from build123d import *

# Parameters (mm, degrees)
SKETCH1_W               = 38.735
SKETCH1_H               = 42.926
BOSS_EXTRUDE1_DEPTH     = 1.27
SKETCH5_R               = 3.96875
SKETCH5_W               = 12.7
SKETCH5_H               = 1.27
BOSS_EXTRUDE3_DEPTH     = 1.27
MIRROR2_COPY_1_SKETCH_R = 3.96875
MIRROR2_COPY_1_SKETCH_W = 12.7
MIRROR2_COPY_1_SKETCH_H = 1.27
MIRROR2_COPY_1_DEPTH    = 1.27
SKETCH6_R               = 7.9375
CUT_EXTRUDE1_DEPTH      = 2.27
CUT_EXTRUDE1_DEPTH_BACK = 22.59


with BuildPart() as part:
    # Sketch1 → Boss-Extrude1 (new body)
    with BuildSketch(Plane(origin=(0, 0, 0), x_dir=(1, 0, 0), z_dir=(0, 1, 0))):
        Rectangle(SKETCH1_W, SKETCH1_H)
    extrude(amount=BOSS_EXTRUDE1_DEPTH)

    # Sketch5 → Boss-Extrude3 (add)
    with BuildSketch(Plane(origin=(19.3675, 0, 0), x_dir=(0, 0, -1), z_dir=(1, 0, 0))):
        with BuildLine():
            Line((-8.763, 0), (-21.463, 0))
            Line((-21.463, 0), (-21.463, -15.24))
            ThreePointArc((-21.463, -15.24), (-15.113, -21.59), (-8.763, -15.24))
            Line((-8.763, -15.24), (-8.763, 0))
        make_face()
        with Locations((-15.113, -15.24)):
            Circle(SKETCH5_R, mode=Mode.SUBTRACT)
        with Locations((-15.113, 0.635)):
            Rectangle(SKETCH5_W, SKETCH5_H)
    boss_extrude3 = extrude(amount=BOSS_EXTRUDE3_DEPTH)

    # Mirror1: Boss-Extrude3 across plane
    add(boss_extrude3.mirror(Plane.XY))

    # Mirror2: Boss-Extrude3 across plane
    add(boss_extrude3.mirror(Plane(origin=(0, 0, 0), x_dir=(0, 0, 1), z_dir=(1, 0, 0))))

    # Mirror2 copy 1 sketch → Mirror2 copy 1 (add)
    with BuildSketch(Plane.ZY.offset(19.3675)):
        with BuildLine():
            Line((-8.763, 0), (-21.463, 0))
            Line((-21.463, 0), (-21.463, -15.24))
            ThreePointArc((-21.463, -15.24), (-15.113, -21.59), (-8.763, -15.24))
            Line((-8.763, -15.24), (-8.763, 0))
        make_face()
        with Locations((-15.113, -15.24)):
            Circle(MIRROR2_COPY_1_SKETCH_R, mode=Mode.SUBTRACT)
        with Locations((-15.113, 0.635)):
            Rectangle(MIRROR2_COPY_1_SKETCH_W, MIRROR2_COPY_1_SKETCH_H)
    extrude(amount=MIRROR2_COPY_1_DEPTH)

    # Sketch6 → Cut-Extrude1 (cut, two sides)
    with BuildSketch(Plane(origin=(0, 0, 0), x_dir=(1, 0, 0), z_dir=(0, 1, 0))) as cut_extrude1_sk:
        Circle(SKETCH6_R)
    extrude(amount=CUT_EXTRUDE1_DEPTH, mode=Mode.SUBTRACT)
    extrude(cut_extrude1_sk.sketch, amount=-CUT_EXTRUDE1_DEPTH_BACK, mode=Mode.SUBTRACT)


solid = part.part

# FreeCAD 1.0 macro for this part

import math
import FreeCAD as App
import Part
import Sketcher
from FreeCAD import Vector
Q = App.Units.Quantity

doc = App.newDocument("Part")
body = doc.addObject("PartDesign::Body", "Body")

# Sketch on XZ plane
sketch1 = body.newObject("Sketcher::SketchObject", "Sketch")
sketch1.AttachmentSupport = (doc.getObject("XZ_Plane"), [""])
sketch1.MapMode = "FlatFace"
sketch1.addGeometry([
    Part.LineSegment(Vector(-19, -21, 0), Vector(-19, 21, 0)),
    Part.LineSegment(Vector(-19, 21, 0), Vector(19, 21, 0)),
    Part.LineSegment(Vector(19, 21, 0), Vector(19, -21, 0)),
    Part.LineSegment(Vector(19, -21, 0), Vector(-19, -21, 0)),
], False)
sketch1.addConstraint([
    Sketcher.Constraint("Coincident", 0, 2, 1, 1),
    Sketcher.Constraint("Coincident", 1, 2, 2, 1),
    Sketcher.Constraint("Coincident", 2, 2, 3, 1),
    Sketcher.Constraint("Coincident", 3, 2, 0, 1),
    Sketcher.Constraint("Vertical", 0),
    Sketcher.Constraint("Horizontal", 1),
    Sketcher.Constraint("Vertical", 2),
    Sketcher.Constraint("Horizontal", 3),
    Sketcher.Constraint("Symmetric", 0, 2, 2, 2, -1, 1),
    Sketcher.Constraint("DistanceY", 0, 1, 0, 2, Q("1.69 in")),
    Sketcher.Constraint("DistanceX", 1, 1, 1, 2, Q("1.525 in")),
])
pad1 = body.newObject("PartDesign::Pad", "Pad")
pad1.Profile = sketch1
pad1.Length = Q("0.05 in")
pad1.Reversed = True

# Sketch on YZ plane
sketch2 = body.newObject("Sketcher::SketchObject", "Sketch001")
sketch2.AttachmentSupport = (doc.getObject("YZ_Plane"), [""])
sketch2.MapMode = "FlatFace"
sketch2.AttachmentOffset = App.Placement(Vector(0, 0, 0.7625 * 25.4), App.Rotation())
sketch2.addGeometry([
    Part.LineSegment(Vector(-15.2, 8.8, 0), Vector(1.3, 8.8, 0)),  # 0
    Part.LineSegment(Vector(1.3, 8.8, 0), Vector(1.3, 21.5, 0)),  # 1
    Part.LineSegment(Vector(1.3, 21.5, 0), Vector(-15.2, 21.5, 0)),  # 2
    Part.ArcOfCircle(Part.Circle(Vector(-15.2, 15.1, 0), Vector(0, 0, 1), 6.3), math.radians(90), math.radians(270)),  # 3
    Part.Circle(Vector(-15.2, 15.1, 0), Vector(0, 0, 1), 4),  # 4
], False)
sketch2.addConstraint([
    Sketcher.Constraint("Coincident", 0, 2, 1, 1),
    Sketcher.Constraint("Coincident", 1, 2, 2, 1),
    Sketcher.Constraint("Tangent", 2, 2, 3, 1),
    Sketcher.Constraint("Tangent", 3, 2, 0, 1),
    Sketcher.Constraint("Horizontal", 0),
    Sketcher.Constraint("Vertical", 1),
    Sketcher.Constraint("Horizontal", 2),
    Sketcher.Constraint("Coincident", 4, 3, 3, 3),
    Sketcher.Constraint("Radius", 3, Q("0.25 in")),
    Sketcher.Constraint("Diameter", 4, Q("0.3125 in")),
    Sketcher.Constraint("DistanceX", 0, 1, 0, 2, Q("0.65 in")),
    Sketcher.Constraint("DistanceX", 3, 3, -1, 1, Q("0.6 in")),
    Sketcher.Constraint("DistanceY", -1, 1, 3, 3, Q("0.595 in")),
])
pad2 = body.newObject("PartDesign::Pad", "Pad001")
pad2.Profile = sketch2
pad2.Length = Q("0.05 in")
doc.recompute()

mirrored = body.newObject("PartDesign::Mirrored", "Mirrored")
mirrored.Originals = [pad2]
mirrored.MirrorPlane = (doc.getObject("XY_Plane"), [""])
body.Tip = mirrored
doc.recompute()

mirrored2 = body.newObject("PartDesign::Mirrored", "Mirrored001")
mirrored2.Originals = [pad2]
mirrored2.MirrorPlane = (doc.getObject("YZ_Plane"), [""])
body.Tip = mirrored2

# Sketch on YZ plane
sketch3 = body.newObject("Sketcher::SketchObject", "Sketch002")
sketch3.AttachmentSupport = (doc.getObject("YZ_Plane"), [""])
sketch3.MapMode = "FlatFace"
sketch3.AttachmentOffset = App.Placement(Vector(0, 0, -0.7625 * 25.4), App.Rotation())
sketch3.addGeometry([
    Part.LineSegment(Vector(-15.2, -8.8, 0), Vector(1.3, -8.8, 0)),  # 0
    Part.LineSegment(Vector(1.3, -8.8, 0), Vector(1.3, -21.5, 0)),  # 1
    Part.LineSegment(Vector(1.3, -21.5, 0), Vector(-15.2, -21.5, 0)),  # 2
    Part.ArcOfCircle(Part.Circle(Vector(-15.2, -15.1, 0), Vector(0, 0, 1), 6.3), math.radians(90), math.radians(270)),  # 3
    Part.Circle(Vector(-15.2, -15.1, 0), Vector(0, 0, 1), 4),  # 4
], False)
sketch3.addConstraint([
    Sketcher.Constraint("Coincident", 0, 2, 1, 1),
    Sketcher.Constraint("Coincident", 1, 2, 2, 1),
    Sketcher.Constraint("Tangent", 2, 2, 3, 2),
    Sketcher.Constraint("Tangent", 3, 1, 0, 1),
    Sketcher.Constraint("Horizontal", 0),
    Sketcher.Constraint("Vertical", 1),
    Sketcher.Constraint("Horizontal", 2),
    Sketcher.Constraint("Coincident", 4, 3, 3, 3),
    Sketcher.Constraint("Radius", 3, Q("0.25 in")),
    Sketcher.Constraint("Diameter", 4, Q("0.3125 in")),
    Sketcher.Constraint("DistanceX", 0, 1, 0, 2, Q("0.65 in")),
    Sketcher.Constraint("DistanceX", 3, 3, -1, 1, Q("0.6 in")),
    Sketcher.Constraint("DistanceY", 3, 3, -1, 1, Q("0.595 in")),
])
pad3 = body.newObject("PartDesign::Pad", "Pad002")
pad3.Profile = sketch3
pad3.Length = Q("0.05 in")
pad3.Reversed = True

# Sketch on XZ plane
sketch4 = body.newObject("Sketcher::SketchObject", "Sketch003")
sketch4.AttachmentSupport = (doc.getObject("XZ_Plane"), [""])
sketch4.MapMode = "FlatFace"
sketch4.addGeometry(Part.Circle(Vector(0, 0, 0), Vector(0, 0, 1), 8), False)
sketch4.addConstraint([
    Sketcher.Constraint("Coincident", 0, 3, -1, 1),
    Sketcher.Constraint("Diameter", 0, Q("0.625 in")),
])
pocket1 = body.newObject("PartDesign::Pocket", "Pocket")
pocket1.Profile = sketch4
pocket1.Type = "ThroughAll"
pocket1.Midplane = True

doc.recompute()
